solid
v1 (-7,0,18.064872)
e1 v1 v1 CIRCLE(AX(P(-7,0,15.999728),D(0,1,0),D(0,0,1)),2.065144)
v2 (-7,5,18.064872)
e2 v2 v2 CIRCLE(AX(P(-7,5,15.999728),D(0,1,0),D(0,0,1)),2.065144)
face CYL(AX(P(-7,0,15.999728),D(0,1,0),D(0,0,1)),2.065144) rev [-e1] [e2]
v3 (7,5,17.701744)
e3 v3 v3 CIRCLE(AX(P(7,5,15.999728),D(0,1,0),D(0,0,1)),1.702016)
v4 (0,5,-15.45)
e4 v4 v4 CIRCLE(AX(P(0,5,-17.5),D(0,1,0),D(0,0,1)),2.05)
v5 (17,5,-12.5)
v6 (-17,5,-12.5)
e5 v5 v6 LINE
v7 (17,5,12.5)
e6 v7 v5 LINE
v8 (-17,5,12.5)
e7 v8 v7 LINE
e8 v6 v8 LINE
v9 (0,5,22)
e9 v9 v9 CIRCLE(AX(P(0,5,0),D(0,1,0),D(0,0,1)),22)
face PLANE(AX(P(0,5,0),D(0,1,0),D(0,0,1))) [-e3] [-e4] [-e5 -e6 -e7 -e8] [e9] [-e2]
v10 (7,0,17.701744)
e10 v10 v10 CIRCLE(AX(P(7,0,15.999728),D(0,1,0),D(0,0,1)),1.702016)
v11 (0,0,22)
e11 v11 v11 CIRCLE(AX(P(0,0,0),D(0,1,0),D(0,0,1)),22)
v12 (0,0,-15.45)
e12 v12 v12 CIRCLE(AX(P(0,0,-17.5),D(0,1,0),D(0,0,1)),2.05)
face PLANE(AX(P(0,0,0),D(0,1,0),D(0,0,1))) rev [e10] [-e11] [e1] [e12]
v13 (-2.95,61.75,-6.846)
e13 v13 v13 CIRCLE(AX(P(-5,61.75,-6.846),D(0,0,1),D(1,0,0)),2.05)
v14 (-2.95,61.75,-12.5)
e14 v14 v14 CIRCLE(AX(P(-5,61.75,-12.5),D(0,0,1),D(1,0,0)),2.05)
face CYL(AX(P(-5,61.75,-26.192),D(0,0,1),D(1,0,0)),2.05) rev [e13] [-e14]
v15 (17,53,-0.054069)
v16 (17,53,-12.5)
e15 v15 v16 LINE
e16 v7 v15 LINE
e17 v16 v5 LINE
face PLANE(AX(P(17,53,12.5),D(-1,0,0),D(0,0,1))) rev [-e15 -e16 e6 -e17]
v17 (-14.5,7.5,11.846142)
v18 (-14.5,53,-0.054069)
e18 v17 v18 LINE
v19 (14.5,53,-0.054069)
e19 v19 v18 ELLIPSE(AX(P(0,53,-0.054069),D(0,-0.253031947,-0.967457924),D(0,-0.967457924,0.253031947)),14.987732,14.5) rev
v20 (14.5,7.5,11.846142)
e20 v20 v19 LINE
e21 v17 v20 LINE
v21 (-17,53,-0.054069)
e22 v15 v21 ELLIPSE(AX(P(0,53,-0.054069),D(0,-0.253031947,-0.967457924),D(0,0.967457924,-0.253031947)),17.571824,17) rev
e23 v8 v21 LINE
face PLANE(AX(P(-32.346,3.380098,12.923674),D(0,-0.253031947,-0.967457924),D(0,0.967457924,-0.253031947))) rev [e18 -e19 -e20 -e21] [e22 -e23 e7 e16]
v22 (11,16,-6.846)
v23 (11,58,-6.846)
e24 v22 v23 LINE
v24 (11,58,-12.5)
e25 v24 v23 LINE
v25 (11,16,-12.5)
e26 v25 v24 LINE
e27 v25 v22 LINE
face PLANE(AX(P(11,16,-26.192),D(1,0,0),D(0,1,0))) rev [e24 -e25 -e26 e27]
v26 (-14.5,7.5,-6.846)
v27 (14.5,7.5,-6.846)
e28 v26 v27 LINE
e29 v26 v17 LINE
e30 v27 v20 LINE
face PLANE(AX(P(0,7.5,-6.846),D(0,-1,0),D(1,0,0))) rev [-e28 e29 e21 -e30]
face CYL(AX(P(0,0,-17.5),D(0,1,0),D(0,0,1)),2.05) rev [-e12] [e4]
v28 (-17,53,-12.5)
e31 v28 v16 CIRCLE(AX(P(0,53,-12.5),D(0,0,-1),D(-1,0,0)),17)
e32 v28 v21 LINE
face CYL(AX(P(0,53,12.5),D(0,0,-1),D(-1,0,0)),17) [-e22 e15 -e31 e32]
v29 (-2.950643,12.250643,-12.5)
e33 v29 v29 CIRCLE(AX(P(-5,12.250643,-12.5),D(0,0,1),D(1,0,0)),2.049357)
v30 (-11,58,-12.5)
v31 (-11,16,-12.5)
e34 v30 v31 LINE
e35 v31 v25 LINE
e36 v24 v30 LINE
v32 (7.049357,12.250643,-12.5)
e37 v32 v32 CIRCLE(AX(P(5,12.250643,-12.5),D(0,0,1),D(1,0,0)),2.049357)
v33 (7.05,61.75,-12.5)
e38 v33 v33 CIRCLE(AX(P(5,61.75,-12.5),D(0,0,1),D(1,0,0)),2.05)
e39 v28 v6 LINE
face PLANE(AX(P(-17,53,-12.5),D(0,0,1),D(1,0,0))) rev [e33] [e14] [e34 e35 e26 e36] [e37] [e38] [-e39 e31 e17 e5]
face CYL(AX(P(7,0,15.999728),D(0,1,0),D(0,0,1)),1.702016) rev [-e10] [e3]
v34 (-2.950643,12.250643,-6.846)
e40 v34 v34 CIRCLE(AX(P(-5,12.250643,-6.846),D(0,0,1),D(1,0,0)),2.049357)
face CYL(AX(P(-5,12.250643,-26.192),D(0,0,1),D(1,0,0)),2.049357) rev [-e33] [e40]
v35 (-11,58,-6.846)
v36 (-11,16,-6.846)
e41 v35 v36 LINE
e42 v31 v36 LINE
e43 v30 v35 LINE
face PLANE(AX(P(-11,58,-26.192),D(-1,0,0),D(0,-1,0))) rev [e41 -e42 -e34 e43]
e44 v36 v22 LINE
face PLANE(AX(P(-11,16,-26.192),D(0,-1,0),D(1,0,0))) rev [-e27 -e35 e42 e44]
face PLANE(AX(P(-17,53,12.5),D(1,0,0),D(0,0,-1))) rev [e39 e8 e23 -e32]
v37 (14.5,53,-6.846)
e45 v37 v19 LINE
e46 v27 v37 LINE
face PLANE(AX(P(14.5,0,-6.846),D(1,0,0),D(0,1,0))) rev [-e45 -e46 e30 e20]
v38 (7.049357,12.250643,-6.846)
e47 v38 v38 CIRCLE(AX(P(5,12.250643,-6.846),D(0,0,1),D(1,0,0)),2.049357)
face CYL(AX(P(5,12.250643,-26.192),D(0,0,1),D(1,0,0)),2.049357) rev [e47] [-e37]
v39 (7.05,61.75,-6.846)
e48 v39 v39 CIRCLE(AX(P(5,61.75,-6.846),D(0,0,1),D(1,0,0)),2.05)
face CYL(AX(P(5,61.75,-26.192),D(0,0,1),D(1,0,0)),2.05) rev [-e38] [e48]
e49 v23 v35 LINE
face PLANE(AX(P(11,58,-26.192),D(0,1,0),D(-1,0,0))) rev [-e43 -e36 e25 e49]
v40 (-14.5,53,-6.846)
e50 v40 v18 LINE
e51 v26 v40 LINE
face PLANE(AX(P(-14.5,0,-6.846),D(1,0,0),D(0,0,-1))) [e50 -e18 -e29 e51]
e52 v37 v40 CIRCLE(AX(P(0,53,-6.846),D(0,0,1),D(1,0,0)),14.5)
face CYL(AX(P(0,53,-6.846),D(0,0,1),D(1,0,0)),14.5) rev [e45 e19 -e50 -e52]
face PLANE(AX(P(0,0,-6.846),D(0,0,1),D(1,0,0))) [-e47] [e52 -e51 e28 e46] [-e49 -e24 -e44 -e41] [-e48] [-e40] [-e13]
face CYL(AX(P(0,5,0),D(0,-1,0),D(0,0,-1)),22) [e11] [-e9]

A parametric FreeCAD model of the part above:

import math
import FreeCAD as App
import Part
import Sketcher
from FreeCAD import Vector
Q = App.Units.Quantity


def add_polygon(sketch, points):
    """Adds a closed chain of lines whose ends are joined by coincident constraints."""
    first, n = sketch.GeometryCount, len(points)
    for a, b in zip(points, points[1:] + points[:1]):
        sketch.addGeometry(Part.LineSegment(App.Vector(*a, 0), App.Vector(*b, 0)), False)
    for i in range(n):
        sketch.addConstraint(Sketcher.Constraint("Coincident", first + i, 2, first + (i + 1) % n, 1))

doc = App.newDocument("Part")
body = doc.addObject("PartDesign::Body", "Body")

sketch1 = body.newObject("Sketcher::SketchObject", "Sketch")
sketch1.AttachmentSupport = (doc.getObject("XZ_Plane"), [""])
sketch1.MapMode = "FlatFace"
sketch1.addGeometry(Part.Circle(Vector(0, 0, 0), Vector(0, 0, 1), 22), False)
sketch1.addConstraint([
    Sketcher.Constraint("Coincident", 0, 3, -1, 1),
    Sketcher.Constraint("Diameter", 0, Q("44 mm")),
])
pad1 = body.newObject("PartDesign::Pad", "Pad")
pad1.Profile = sketch1
pad1.Length = 5
pad1.Reversed = True

sketch2 = body.newObject("Sketcher::SketchObject", "Sketch001")
sketch2.AttachmentSupport = (doc.getObject("XZ_Plane"), [""])
sketch2.MapMode = "FlatFace"
sketch2.AttachmentOffset = App.Placement(Vector(0, 0, -5), App.Rotation())
sketch2.addGeometry([
    Part.Circle(Vector(0, -17.5, 0), Vector(0, 0, 1), 2),
    Part.Circle(Vector(-7, 16, 0), Vector(0, 0, 1), 2.1),
    Part.Circle(Vector(7, 16, 0), Vector(0, 0, 1), 1.7),
], False)
sketch2.addConstraint([
    Sketcher.Constraint("Symmetric", 1, 3, 2, 3, -2),
    Sketcher.Constraint("PointOnObject", 0, 3, -2),
    Sketcher.Constraint("Diameter", 0, Q("4.1 mm")),
    Sketcher.Constraint("DistanceX", 1, 3, -1, 1, Q("7 mm")),
    Sketcher.Constraint("DistanceY", 0, 3, -1, 1, Q("17.5 mm")),
    Sketcher.Constraint("Diameter", 2, Q("3.404032 mm")),
    Sketcher.Constraint("Diameter", 1, Q("4.130287 mm")),
    Sketcher.Constraint("DistanceY", -1, 1, 1, 3, Q("15.999728 mm")),
])
pocket1 = body.newObject("PartDesign::Pocket", "Pocket")
pocket1.Profile = sketch2
pocket1.Length = 5
pocket1.Reversed = True

sketch3 = body.newObject("Sketcher::SketchObject", "Sketch002")
sketch3.AttachmentSupport = (doc.getObject("XZ_Plane"), [""])
sketch3.MapMode = "FlatFace"
sketch3.AttachmentOffset = App.Placement(Vector(0, 0, -5), App.Rotation())
add_polygon(sketch3, [(-17, -12), (-17, 12), (17, 12), (17, -12)])
sketch3.addConstraint([
    Sketcher.Constraint("Vertical", 0),
    Sketcher.Constraint("Horizontal", 1),
    Sketcher.Constraint("Vertical", 2),
    Sketcher.Constraint("Horizontal", 3),
    Sketcher.Constraint("Symmetric", 0, 2, 2, 2, -1, 1),
    Sketcher.Constraint("DistanceX", 1, 1, 1, 2, Q("34 mm")),
    Sketcher.Constraint("DistanceY", 0, 1, 0, 2, Q("25 mm")),
])
pad2 = body.newObject("PartDesign::Pad", "Pad001")
pad2.Profile = sketch3
pad2.Length = 48
pad2.Reversed = True

sketch4 = body.newObject("Sketcher::SketchObject", "Sketch003")
sketch4.AttachmentSupport = (doc.getObject("XY_Plane"), [""])
sketch4.MapMode = "FlatFace"
sketch4.AttachmentOffset = App.Placement(Vector(0, 0, -12.5), App.Rotation())
sketch4.addGeometry([
    Part.LineSegment(Vector(17, 53, 0), Vector(-17, 53, 0)),
    Part.ArcOfCircle(Part.Circle(Vector(0, 53, 0), Vector(0, 0, 1), 17), math.radians(0), math.radians(180)),
], False)
sketch4.addConstraint([
    Sketcher.Constraint("Coincident", 0, 1, 1, 1),
    Sketcher.Constraint("Coincident", 1, 2, 0, 2),
    Sketcher.Constraint("Horizontal", 0),
    Sketcher.Constraint("PointOnObject", 1, 3, -2),
    Sketcher.Constraint("Horizontal", 1, 3, 0, 1),
    Sketcher.Constraint("Radius", 1, Q("17 mm")),
    Sketcher.Constraint("DistanceY", -1, 1, 1, 3, Q("53 mm")),
])
pad3 = body.newObject("PartDesign::Pad", "Pad002")
pad3.Profile = sketch4
pad3.Length = 25

sketch5 = body.newObject("Sketcher::SketchObject", "Sketch004")
sketch5.AttachmentSupport = (doc.getObject("XY_Plane"), [""])
sketch5.MapMode = "FlatFace"
sketch5.AttachmentOffset = App.Placement(Vector(0, 0, 12.5), App.Rotation())
sketch5.addGeometry([
    Part.LineSegment(Vector(14, 8, 0), Vector(14, 53, 0)),
    Part.ArcOfCircle(Part.Circle(Vector(0, 53, 0), Vector(0, 0, 1), 14), math.radians(0), math.radians(180)),
    Part.LineSegment(Vector(-14, 53, 0), Vector(-14, 8, 0)),
    Part.LineSegment(Vector(-14, 8, 0), Vector(14, 8, 0)),
], False)
sketch5.addConstraint([
    Sketcher.Constraint("Tangent", 0, 2, 1, 1),
    Sketcher.Constraint("Tangent", 1, 2, 2, 1),
    Sketcher.Constraint("Coincident", 2, 2, 3, 1),
    Sketcher.Constraint("Coincident", 3, 2, 0, 1),
    Sketcher.Constraint("Vertical", 0),
    Sketcher.Constraint("Vertical", 2),
    Sketcher.Constraint("Horizontal", 3),
    Sketcher.Constraint("PointOnObject", 1, 3, -2),
    Sketcher.Constraint("Radius", 1, Q("14.5 mm")),
    Sketcher.Constraint("DistanceY", 0, 1, 0, 2, Q("45.5 mm")),
    Sketcher.Constraint("DistanceY", -1, 1, 1, 3, Q("53 mm")),
])
pocket2 = body.newObject("PartDesign::Pocket", "Pocket001")
pocket2.Profile = sketch5
pocket2.Length = 19.346

sketch6 = body.newObject("Sketcher::SketchObject", "Sketch005")
sketch6.AttachmentSupport = (doc.getObject("XY_Plane"), [""])
sketch6.MapMode = "FlatFace"
sketch6.AttachmentOffset = App.Placement(Vector(0, 0, -6.846), App.Rotation())
sketch6.addGeometry(Part.Circle(Vector(-5, 12.3, 0), Vector(0, 0, 1), 2), False)
sketch6.addGeometry(Part.Circle(Vector(5, 12.3, 0), Vector(0, 0, 1), 2), False)
sketch6.addGeometry(Part.Circle(Vector(-5, 61.8, 0), Vector(0, 0, 1), 2), False)
sketch6.addGeometry(Part.Circle(Vector(5, 61.8, 0), Vector(0, 0, 1), 2), False)
add_polygon(sketch6, [(-11, 58), (-11, 16), (11, 16), (11, 58)])
sketch6.addConstraint([
    Sketcher.Constraint("Vertical", 4),
    Sketcher.Constraint("Horizontal", 5),
    Sketcher.Constraint("Vertical", 6),
    Sketcher.Constraint("Horizontal", 7),
    Sketcher.Constraint("Equal", 0, 1),
    Sketcher.Constraint("Equal", 2, 3),
    Sketcher.Constraint("Symmetric", 0, 3, 1, 3, -2),
    Sketcher.Constraint("Symmetric", 2, 3, 3, 3, -2),
    Sketcher.Constraint("Vertical", 0, 3, 2, 3),
    Sketcher.Constraint("Diameter", 2, Q("4.1 mm")),
    Sketcher.Constraint("DistanceX", 5, 1, 5, 2, Q("22 mm")),
    Sketcher.Constraint("DistanceY", 4, 2, 4, 1, Q("42 mm")),
    Sketcher.Constraint("DistanceX", 0, 3, -1, 1, Q("5 mm")),
    Sketcher.Constraint("DistanceX", 4, 2, -1, 1, Q("11 mm")),
    Sketcher.Constraint("DistanceY", -1, 1, 4, 2, Q("16 mm")),
    Sketcher.Constraint("DistanceY", -1, 1, 2, 3, Q("61.75 mm")),
    Sketcher.Constraint("Diameter", 0, Q("4.098714 mm")),
    Sketcher.Constraint("DistanceY", -1, 1, 0, 3, Q("12.250643 mm")),
])
pocket3 = body.newObject("PartDesign::Pocket", "Pocket002")
pocket3.Profile = sketch6
pocket3.Length = 19.346

sketch7 = body.newObject("Sketcher::SketchObject", "Sketch006")
sketch7.AttachmentSupport = (doc.getObject("YZ_Plane"), [""])
sketch7.MapMode = "FlatFace"
sketch7.AttachmentOffset = App.Placement(Vector(0, 0, 17), App.Rotation())
add_polygon(sketch7, [(53, 0), (93, -10), (93, 12), (5, 12)])
sketch7.addConstraint([
    Sketcher.Constraint("Vertical", 1),
    Sketcher.Constraint("Horizontal", 2),
    Sketcher.Constraint("Parallel", 0, 3),
    Sketcher.Constraint("DistanceX", -1, 1, 2, 2, Q("5 mm")),
    Sketcher.Constraint("DistanceX", -1, 1, 3, 2, Q("53 mm")),
    Sketcher.Constraint("DistanceY", -1, 1, 1, 2, Q("12.5 mm")),
    Sketcher.Constraint("DistanceY", 1, 1, 1, 2, Q("22.9005 mm")),
    Sketcher.Constraint("DistanceX", 2, 2, 2, 1, Q("87.559181 mm")),
])
pocket4 = body.newObject("PartDesign::Pocket", "Pocket003")
pocket4.Profile = sketch7
pocket4.Length = 49.346

doc.recompute()
